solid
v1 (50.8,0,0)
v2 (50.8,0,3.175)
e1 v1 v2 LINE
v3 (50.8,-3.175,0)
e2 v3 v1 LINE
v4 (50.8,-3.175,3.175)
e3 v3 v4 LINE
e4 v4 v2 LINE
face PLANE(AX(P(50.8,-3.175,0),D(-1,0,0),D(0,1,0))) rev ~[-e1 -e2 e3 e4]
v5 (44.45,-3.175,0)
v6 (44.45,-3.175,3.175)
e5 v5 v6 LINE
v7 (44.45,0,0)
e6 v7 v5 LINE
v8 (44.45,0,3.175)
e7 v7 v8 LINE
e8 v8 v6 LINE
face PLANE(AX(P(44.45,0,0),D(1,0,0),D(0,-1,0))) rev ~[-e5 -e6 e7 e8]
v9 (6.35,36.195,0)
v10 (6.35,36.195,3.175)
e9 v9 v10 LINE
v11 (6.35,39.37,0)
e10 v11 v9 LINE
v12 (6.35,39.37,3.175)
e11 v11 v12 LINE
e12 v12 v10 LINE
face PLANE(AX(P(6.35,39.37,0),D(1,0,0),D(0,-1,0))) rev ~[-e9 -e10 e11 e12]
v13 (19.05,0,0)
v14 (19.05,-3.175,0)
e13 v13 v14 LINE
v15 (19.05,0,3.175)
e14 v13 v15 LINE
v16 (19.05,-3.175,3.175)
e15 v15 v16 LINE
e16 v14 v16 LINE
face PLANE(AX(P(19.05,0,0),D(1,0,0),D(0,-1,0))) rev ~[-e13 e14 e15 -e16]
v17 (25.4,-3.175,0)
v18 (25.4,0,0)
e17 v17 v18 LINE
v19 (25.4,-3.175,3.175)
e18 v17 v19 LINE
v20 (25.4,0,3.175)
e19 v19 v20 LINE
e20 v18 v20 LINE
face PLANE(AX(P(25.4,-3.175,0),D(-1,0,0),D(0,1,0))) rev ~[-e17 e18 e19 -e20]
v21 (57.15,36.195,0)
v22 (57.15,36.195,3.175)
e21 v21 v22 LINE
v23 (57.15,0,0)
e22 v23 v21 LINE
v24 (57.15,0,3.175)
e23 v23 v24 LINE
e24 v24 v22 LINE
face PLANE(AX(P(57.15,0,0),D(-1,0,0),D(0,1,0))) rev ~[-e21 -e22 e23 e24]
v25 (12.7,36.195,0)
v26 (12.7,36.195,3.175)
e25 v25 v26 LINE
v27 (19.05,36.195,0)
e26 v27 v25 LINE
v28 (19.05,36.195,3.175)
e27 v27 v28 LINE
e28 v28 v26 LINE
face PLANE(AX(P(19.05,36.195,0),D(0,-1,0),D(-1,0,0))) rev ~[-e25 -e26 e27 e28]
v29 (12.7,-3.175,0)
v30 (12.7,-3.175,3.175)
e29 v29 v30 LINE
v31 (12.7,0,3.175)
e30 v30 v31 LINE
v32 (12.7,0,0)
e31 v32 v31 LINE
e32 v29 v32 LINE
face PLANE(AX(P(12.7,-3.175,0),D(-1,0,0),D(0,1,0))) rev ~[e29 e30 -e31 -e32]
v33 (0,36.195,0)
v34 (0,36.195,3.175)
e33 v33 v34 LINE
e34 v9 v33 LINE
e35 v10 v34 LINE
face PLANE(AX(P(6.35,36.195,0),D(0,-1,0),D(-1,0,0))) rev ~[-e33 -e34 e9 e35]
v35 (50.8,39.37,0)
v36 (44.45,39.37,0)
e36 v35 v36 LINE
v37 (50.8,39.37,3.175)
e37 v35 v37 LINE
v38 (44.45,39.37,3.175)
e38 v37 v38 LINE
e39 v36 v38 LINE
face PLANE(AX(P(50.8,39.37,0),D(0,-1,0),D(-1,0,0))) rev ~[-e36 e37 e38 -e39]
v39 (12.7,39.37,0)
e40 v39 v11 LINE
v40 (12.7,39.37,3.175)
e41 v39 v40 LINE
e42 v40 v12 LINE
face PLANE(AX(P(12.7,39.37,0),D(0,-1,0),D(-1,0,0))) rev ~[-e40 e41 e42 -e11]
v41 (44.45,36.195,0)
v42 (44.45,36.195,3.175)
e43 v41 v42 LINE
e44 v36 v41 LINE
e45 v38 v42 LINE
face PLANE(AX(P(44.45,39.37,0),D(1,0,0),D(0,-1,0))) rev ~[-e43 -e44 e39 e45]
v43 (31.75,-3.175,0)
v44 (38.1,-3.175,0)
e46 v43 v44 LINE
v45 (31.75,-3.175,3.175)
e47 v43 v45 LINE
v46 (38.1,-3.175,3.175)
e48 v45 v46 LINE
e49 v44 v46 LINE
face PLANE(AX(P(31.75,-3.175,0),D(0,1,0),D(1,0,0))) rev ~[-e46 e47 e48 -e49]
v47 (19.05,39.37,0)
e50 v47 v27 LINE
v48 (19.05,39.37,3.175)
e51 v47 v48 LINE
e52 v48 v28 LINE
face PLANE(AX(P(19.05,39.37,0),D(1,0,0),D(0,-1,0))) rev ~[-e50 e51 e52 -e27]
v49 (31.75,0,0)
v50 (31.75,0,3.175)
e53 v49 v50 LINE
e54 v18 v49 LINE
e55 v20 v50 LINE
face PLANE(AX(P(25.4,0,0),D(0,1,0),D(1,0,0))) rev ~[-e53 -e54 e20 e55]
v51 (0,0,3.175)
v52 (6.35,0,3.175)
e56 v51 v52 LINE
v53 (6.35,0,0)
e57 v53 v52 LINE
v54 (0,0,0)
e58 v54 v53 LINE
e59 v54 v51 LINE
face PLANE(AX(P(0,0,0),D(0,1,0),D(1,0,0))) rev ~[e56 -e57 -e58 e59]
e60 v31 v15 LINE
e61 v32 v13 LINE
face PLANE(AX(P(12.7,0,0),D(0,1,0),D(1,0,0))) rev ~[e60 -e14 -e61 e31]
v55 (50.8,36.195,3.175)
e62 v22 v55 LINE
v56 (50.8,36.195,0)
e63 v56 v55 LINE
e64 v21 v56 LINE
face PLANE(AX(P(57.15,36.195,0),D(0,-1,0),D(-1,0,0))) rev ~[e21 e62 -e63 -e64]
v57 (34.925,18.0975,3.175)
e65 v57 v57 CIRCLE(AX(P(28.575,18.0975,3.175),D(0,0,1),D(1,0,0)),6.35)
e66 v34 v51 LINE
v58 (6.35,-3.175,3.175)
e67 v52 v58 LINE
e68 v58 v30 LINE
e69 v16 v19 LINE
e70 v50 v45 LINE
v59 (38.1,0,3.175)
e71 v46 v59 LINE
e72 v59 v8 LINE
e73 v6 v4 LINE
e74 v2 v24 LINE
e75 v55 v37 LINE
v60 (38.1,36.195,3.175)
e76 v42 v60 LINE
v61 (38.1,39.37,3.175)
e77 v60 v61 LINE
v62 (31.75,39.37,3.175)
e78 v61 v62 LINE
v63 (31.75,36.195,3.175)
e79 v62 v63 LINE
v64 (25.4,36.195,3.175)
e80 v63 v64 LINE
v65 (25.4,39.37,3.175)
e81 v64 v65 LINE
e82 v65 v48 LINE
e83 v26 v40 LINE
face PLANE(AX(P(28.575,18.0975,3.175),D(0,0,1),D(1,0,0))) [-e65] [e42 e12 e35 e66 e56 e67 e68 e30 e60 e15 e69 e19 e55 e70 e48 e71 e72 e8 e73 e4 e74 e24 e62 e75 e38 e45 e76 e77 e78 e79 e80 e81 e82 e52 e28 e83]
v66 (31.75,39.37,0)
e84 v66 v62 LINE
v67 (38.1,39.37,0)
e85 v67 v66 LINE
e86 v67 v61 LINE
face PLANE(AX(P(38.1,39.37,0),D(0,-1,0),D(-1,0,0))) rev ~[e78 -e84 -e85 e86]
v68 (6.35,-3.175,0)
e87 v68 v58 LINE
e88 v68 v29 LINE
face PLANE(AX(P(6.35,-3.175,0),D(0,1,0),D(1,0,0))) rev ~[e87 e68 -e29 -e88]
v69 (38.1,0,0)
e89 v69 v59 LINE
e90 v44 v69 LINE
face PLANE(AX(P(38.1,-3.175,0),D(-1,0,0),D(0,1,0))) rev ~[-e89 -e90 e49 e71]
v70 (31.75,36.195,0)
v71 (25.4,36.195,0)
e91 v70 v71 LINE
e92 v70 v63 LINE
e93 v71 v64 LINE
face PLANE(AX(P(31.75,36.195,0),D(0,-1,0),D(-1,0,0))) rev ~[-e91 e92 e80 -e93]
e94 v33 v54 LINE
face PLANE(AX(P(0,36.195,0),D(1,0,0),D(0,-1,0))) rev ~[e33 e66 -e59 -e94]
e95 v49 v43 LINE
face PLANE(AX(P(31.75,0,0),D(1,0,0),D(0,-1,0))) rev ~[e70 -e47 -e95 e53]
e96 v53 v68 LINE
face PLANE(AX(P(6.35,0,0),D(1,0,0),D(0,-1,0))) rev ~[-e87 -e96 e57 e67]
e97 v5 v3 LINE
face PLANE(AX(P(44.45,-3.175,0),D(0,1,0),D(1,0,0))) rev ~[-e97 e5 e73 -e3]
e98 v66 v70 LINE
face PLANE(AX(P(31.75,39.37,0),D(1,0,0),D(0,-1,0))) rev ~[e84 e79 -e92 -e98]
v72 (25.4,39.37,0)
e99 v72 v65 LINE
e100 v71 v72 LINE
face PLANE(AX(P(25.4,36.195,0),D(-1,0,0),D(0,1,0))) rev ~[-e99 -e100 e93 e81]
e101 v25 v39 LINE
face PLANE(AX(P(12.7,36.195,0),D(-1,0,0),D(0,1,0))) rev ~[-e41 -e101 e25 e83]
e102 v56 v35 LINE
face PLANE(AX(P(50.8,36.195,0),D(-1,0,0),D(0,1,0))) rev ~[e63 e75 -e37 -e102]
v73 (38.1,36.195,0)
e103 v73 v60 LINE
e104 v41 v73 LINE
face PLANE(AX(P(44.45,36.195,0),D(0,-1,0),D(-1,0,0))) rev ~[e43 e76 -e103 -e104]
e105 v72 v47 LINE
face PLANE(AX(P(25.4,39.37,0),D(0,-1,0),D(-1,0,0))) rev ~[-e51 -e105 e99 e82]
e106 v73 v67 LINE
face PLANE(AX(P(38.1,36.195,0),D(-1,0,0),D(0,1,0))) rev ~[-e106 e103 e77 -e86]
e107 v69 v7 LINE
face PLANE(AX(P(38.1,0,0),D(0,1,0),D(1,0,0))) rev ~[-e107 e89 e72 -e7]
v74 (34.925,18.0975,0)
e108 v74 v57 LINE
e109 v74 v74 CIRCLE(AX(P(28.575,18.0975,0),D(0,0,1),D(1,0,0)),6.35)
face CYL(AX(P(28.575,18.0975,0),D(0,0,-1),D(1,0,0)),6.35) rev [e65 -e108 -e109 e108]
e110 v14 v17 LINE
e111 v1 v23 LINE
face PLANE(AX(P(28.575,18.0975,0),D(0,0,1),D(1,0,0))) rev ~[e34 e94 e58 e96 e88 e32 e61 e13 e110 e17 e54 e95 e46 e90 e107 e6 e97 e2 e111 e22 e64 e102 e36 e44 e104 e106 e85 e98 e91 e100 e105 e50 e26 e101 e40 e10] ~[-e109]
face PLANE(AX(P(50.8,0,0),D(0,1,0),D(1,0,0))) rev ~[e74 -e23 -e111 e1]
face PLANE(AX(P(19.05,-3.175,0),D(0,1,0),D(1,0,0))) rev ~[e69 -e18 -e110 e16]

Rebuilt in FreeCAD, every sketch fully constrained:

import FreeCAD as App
import Part
import Sketcher
Q = App.Units.Quantity

doc = App.newDocument("Part")
body = doc.addObject("PartDesign::Body", "Body")

sketch1 = body.newObject("Sketcher::SketchObject", "Sketch")
sketch1.AttachmentSupport = (doc.getObject("XY_Plane"), [""])
sketch1.MapMode = "FlatFace"
sketch1.addGeometry(Part.LineSegment(App.Vector(6.35, 0, 0), App.Vector(6.35, -3.175, 0)), False)
sketch1.addGeometry(Part.LineSegment(App.Vector(6.35, -3.175, 0), App.Vector(12.7, -3.175, 0)), False)
sketch1.addGeometry(Part.LineSegment(App.Vector(12.7, -3.175, 0), App.Vector(12.7, 0, 0)), False)
sketch1.addGeometry(Part.LineSegment(App.Vector(12.7, 0, 0), App.Vector(19.05, 0, 0)), False)
sketch1.addGeometry(Part.LineSegment(App.Vector(19.05, 0, 0), App.Vector(19.05, -3.175, 0)), False)
sketch1.addGeometry(Part.LineSegment(App.Vector(19.05, -3.175, 0), App.Vector(25.4, -3.175, 0)), False)
sketch1.addGeometry(Part.LineSegment(App.Vector(25.4, -3.175, 0), App.Vector(25.4, 0, 0)), False)
sketch1.addGeometry(Part.LineSegment(App.Vector(25.4, 0, 0), App.Vector(31.75, 0, 0)), False)
sketch1.addGeometry(Part.LineSegment(App.Vector(31.75, 0, 0), App.Vector(31.75, -3.175, 0)), False)
sketch1.addGeometry(Part.LineSegment(App.Vector(31.75, -3.175, 0), App.Vector(38.1, -3.175, 0)), False)
sketch1.addGeometry(Part.LineSegment(App.Vector(38.1, -3.175, 0), App.Vector(38.1, 0, 0)), False)
sketch1.addGeometry(Part.LineSegment(App.Vector(38.1, 0, 0), App.Vector(44.45, 0, 0)), False)
sketch1.addGeometry(Part.LineSegment(App.Vector(44.45, 0, 0), App.Vector(44.45, -3.175, 0)), False)
sketch1.addGeometry(Part.LineSegment(App.Vector(44.45, -3.175, 0), App.Vector(50.8, -3.175, 0)), False)
sketch1.addGeometry(Part.LineSegment(App.Vector(50.8, -3.175, 0), App.Vector(50.8, 0, 0)), False)
sketch1.addGeometry(Part.LineSegment(App.Vector(50.8, 0, 0), App.Vector(57.15, 0, 0)), False)
sketch1.addGeometry(Part.LineSegment(App.Vector(57.15, 0, 0), App.Vector(57.15, 36.195, 0)), False)
sketch1.addGeometry(Part.LineSegment(App.Vector(57.15, 36.195, 0), App.Vector(50.8, 36.195, 0)), False)
sketch1.addGeometry(Part.LineSegment(App.Vector(50.8, 36.195, 0), App.Vector(50.8, 39.37, 0)), False)
sketch1.addGeometry(Part.LineSegment(App.Vector(50.8, 39.37, 0), App.Vector(44.45, 39.37, 0)), False)
sketch1.addGeometry(Part.LineSegment(App.Vector(44.45, 39.37, 0), App.Vector(44.45, 36.195, 0)), False)
sketch1.addGeometry(Part.LineSegment(App.Vector(44.45, 36.195, 0), App.Vector(38.1, 36.195, 0)), False)
sketch1.addGeometry(Part.LineSegment(App.Vector(38.1, 36.195, 0), App.Vector(38.1, 39.37, 0)), False)
sketch1.addGeometry(Part.LineSegment(App.Vector(38.1, 39.37, 0), App.Vector(31.75, 39.37, 0)), False)
sketch1.addGeometry(Part.LineSegment(App.Vector(31.75, 39.37, 0), App.Vector(31.75, 36.195, 0)), False)
sketch1.addGeometry(Part.LineSegment(App.Vector(31.75, 36.195, 0), App.Vector(25.4, 36.195, 0)), False)
sketch1.addGeometry(Part.LineSegment(App.Vector(25.4, 36.195, 0), App.Vector(25.4, 39.37, 0)), False)
sketch1.addGeometry(Part.LineSegment(App.Vector(25.4, 39.37, 0), App.Vector(19.05, 39.37, 0)), False)
sketch1.addGeometry(Part.LineSegment(App.Vector(19.05, 39.37, 0), App.Vector(19.05, 36.195, 0)), False)
sketch1.addGeometry(Part.LineSegment(App.Vector(19.05, 36.195, 0), App.Vector(12.7, 36.195, 0)), False)
sketch1.addGeometry(Part.LineSegment(App.Vector(12.7, 36.195, 0), App.Vector(12.7, 39.37, 0)), False)
sketch1.addGeometry(Part.LineSegment(App.Vector(12.7, 39.37, 0), App.Vector(6.35, 39.37, 0)), False)
sketch1.addGeometry(Part.LineSegment(App.Vector(6.35, 39.37, 0), App.Vector(6.35, 36.195, 0)), False)
sketch1.addGeometry(Part.LineSegment(App.Vector(6.35, 36.195, 0), App.Vector(0, 36.195, 0)), False)
sketch1.addGeometry(Part.LineSegment(App.Vector(0, 36.195, 0), App.Vector(0, 0, 0)), False)
sketch1.addGeometry(Part.LineSegment(App.Vector(0, 0, 0), App.Vector(6.35, 0, 0)), False)
sketch1.addGeometry(Part.Circle(App.Vector(28.575, 18.0975, 0), App.Vector(0, 0, 1), 6.35), False)
sketch1.addConstraint(Sketcher.Constraint("Coincident", 0, 2, 1, 1))
sketch1.addConstraint(Sketcher.Constraint("Coincident", 1, 2, 2, 1))
sketch1.addConstraint(Sketcher.Constraint("Coincident", 2, 2, 3, 1))
sketch1.addConstraint(Sketcher.Constraint("Coincident", 3, 2, 4, 1))
sketch1.addConstraint(Sketcher.Constraint("Coincident", 4, 2, 5, 1))
sketch1.addConstraint(Sketcher.Constraint("Coincident", 5, 2, 6, 1))
sketch1.addConstraint(Sketcher.Constraint("Coincident", 6, 2, 7, 1))
sketch1.addConstraint(Sketcher.Constraint("Coincident", 7, 2, 8, 1))
sketch1.addConstraint(Sketcher.Constraint("Coincident", 8, 2, 9, 1))
sketch1.addConstraint(Sketcher.Constraint("Coincident", 9, 2, 10, 1))
sketch1.addConstraint(Sketcher.Constraint("Coincident", 10, 2, 11, 1))
sketch1.addConstraint(Sketcher.Constraint("Coincident", 11, 2, 12, 1))
sketch1.addConstraint(Sketcher.Constraint("Coincident", 12, 2, 13, 1))
sketch1.addConstraint(Sketcher.Constraint("Coincident", 13, 2, 14, 1))
sketch1.addConstraint(Sketcher.Constraint("Coincident", 14, 2, 15, 1))
sketch1.addConstraint(Sketcher.Constraint("Coincident", 15, 2, 16, 1))
sketch1.addConstraint(Sketcher.Constraint("Coincident", 16, 2, 17, 1))
sketch1.addConstraint(Sketcher.Constraint("Coincident", 17, 2, 18, 1))
sketch1.addConstraint(Sketcher.Constraint("Coincident", 18, 2, 19, 1))
sketch1.addConstraint(Sketcher.Constraint("Coincident", 19, 2, 20, 1))
sketch1.addConstraint(Sketcher.Constraint("Coincident", 20, 2, 21, 1))
sketch1.addConstraint(Sketcher.Constraint("Coincident", 21, 2, 22, 1))
sketch1.addConstraint(Sketcher.Constraint("Coincident", 22, 2, 23, 1))
sketch1.addConstraint(Sketcher.Constraint("Coincident", 23, 2, 24, 1))
sketch1.addConstraint(Sketcher.Constraint("Coincident", 24, 2, 25, 1))
sketch1.addConstraint(Sketcher.Constraint("Coincident", 25, 2, 26, 1))
sketch1.addConstraint(Sketcher.Constraint("Coincident", 26, 2, 27, 1))
sketch1.addConstraint(Sketcher.Constraint("Coincident", 27, 2, 28, 1))
sketch1.addConstraint(Sketcher.Constraint("Coincident", 28, 2, 29, 1))
sketch1.addConstraint(Sketcher.Constraint("Coincident", 29, 2, 30, 1))
sketch1.addConstraint(Sketcher.Constraint("Coincident", 30, 2, 31, 1))
sketch1.addConstraint(Sketcher.Constraint("Coincident", 31, 2, 32, 1))
sketch1.addConstraint(Sketcher.Constraint("Coincident", 32, 2, 33, 1))
sketch1.addConstraint(Sketcher.Constraint("Coincident", 33, 2, 34, 1))
sketch1.addConstraint(Sketcher.Constraint("Coincident", 34, 2, 35, 1))
sketch1.addConstraint(Sketcher.Constraint("Coincident", 35, 2, 0, 1))
sketch1.addConstraint(Sketcher.Constraint("Vertical", 0))
sketch1.addConstraint(Sketcher.Constraint("Horizontal", 1))
sketch1.addConstraint(Sketcher.Constraint("Vertical", 2))
sketch1.addConstraint(Sketcher.Constraint("Horizontal", 3))
sketch1.addConstraint(Sketcher.Constraint("Vertical", 4))
sketch1.addConstraint(Sketcher.Constraint("Horizontal", 5))
sketch1.addConstraint(Sketcher.Constraint("Vertical", 6))
sketch1.addConstraint(Sketcher.Constraint("Horizontal", 7))
sketch1.addConstraint(Sketcher.Constraint("Vertical", 8))
sketch1.addConstraint(Sketcher.Constraint("Horizontal", 9))
sketch1.addConstraint(Sketcher.Constraint("Vertical", 10))
sketch1.addConstraint(Sketcher.Constraint("Horizontal", 11))
sketch1.addConstraint(Sketcher.Constraint("Vertical", 12))
sketch1.addConstraint(Sketcher.Constraint("Horizontal", 13))
sketch1.addConstraint(Sketcher.Constraint("Vertical", 14))
sketch1.addConstraint(Sketcher.Constraint("Horizontal", 15))
sketch1.addConstraint(Sketcher.Constraint("Vertical", 16))
sketch1.addConstraint(Sketcher.Constraint("Horizontal", 17))
sketch1.addConstraint(Sketcher.Constraint("Vertical", 18))
sketch1.addConstraint(Sketcher.Constraint("Horizontal", 19))
sketch1.addConstraint(Sketcher.Constraint("Vertical", 20))
sketch1.addConstraint(Sketcher.Constraint("Horizontal", 21))
sketch1.addConstraint(Sketcher.Constraint("Vertical", 22))
sketch1.addConstraint(Sketcher.Constraint("Horizontal", 23))
sketch1.addConstraint(Sketcher.Constraint("Vertical", 24))
sketch1.addConstraint(Sketcher.Constraint("Horizontal", 25))
sketch1.addConstraint(Sketcher.Constraint("Vertical", 26))
sketch1.addConstraint(Sketcher.Constraint("Horizontal", 27))
sketch1.addConstraint(Sketcher.Constraint("Vertical", 28))
sketch1.addConstraint(Sketcher.Constraint("Horizontal", 29))
sketch1.addConstraint(Sketcher.Constraint("Vertical", 30))
sketch1.addConstraint(Sketcher.Constraint("Horizontal", 31))
sketch1.addConstraint(Sketcher.Constraint("Vertical", 32))
sketch1.addConstraint(Sketcher.Constraint("Horizontal", 33))
sketch1.addConstraint(Sketcher.Constraint("Vertical", 34))
sketch1.addConstraint(Sketcher.Constraint("Horizontal", 35))
sketch1.addConstraint(Sketcher.Constraint("Coincident", 34, 2, -1, 1))
sketch1.addConstraint(Sketcher.Constraint("PointOnObject", 2, 2, -1))
sketch1.addConstraint(Sketcher.Constraint("PointOnObject", 6, 2, -1))
sketch1.addConstraint(Sketcher.Constraint("PointOnObject", 10, 2, -1))
sketch1.addConstraint(Sketcher.Constraint("PointOnObject", 14, 2, -1))
sketch1.addConstraint(Sketcher.Constraint("Horizontal", 1, 2, 4, 2))
sketch1.addConstraint(Sketcher.Constraint("Horizontal", 5, 2, 8, 2))
sketch1.addConstraint(Sketcher.Constraint("Horizontal", 9, 2, 12, 2))
sketch1.addConstraint(Sketcher.Constraint("Horizontal", 17, 2, 20, 2))
sketch1.addConstraint(Sketcher.Constraint("Horizontal", 19, 2, 22, 2))
sketch1.addConstraint(Sketcher.Constraint("Horizontal", 21, 2, 24, 2))
sketch1.addConstraint(Sketcher.Constraint("Horizontal", 23, 2, 26, 2))
sketch1.addConstraint(Sketcher.Constraint("Horizontal", 25, 2, 28, 2))
sketch1.addConstraint(Sketcher.Constraint("Horizontal", 27, 2, 30, 2))
sketch1.addConstraint(Sketcher.Constraint("Horizontal", 29, 2, 32, 2))
sketch1.addConstraint(Sketcher.Constraint("Vertical", 14, 2, 17, 2))
sketch1.addConstraint(Sketcher.Constraint("Vertical", 12, 2, 19, 2))
sketch1.addConstraint(Sketcher.Constraint("Vertical", 10, 2, 21, 2))
sketch1.addConstraint(Sketcher.Constraint("Vertical", 8, 2, 23, 2))
sketch1.addConstraint(Sketcher.Constraint("Vertical", 6, 2, 25, 2))
sketch1.addConstraint(Sketcher.Constraint("Vertical", 4, 2, 27, 2))
sketch1.addConstraint(Sketcher.Constraint("Vertical", 2, 2, 29, 2))
sketch1.addConstraint(Sketcher.Constraint("Vertical", 0, 2, 31, 2))
sketch1.addConstraint(Sketcher.Constraint("Equal", 1, 3))
sketch1.addConstraint(Sketcher.Constraint("Equal", 3, 5))
sketch1.addConstraint(Sketcher.Constraint("Equal", 5, 7))
sketch1.addConstraint(Sketcher.Constraint("Equal", 7, 9))
sketch1.addConstraint(Sketcher.Constraint("Equal", 9, 11))
sketch1.addConstraint(Sketcher.Constraint("Equal", 11, 13))
sketch1.addConstraint(Sketcher.Constraint("Equal", 13, 15))
sketch1.addConstraint(Sketcher.Constraint("Equal", 31, 33))
sketch1.addConstraint(Sketcher.Constraint("Equal", 14, 18))
sketch1.addConstraint(Sketcher.Constraint("Diameter", 36, Q("0.5 in")))
sketch1.addConstraint(Sketcher.Constraint("DistanceX", -1, 1, 5, 2, Q("1 in")))
sketch1.addConstraint(Sketcher.Constraint("DistanceY", 0, 2, 0, 1, Q("0.125 in")))
sketch1.addConstraint(Sketcher.Constraint("DistanceY", 16, 1, 16, 2, Q("1.425 in")))
sketch1.addConstraint(Sketcher.Constraint("DistanceX", -1, 1, 36, 3, Q("1.125 in")))
sketch1.addConstraint(Sketcher.Constraint("DistanceY", -1, 1, 36, 3, Q("0.7125 in")))
pad1 = body.newObject("PartDesign::Pad", "Pad")
pad1.Profile = sketch1
pad1.Length = Q("0.125 in")

doc.recompute()
